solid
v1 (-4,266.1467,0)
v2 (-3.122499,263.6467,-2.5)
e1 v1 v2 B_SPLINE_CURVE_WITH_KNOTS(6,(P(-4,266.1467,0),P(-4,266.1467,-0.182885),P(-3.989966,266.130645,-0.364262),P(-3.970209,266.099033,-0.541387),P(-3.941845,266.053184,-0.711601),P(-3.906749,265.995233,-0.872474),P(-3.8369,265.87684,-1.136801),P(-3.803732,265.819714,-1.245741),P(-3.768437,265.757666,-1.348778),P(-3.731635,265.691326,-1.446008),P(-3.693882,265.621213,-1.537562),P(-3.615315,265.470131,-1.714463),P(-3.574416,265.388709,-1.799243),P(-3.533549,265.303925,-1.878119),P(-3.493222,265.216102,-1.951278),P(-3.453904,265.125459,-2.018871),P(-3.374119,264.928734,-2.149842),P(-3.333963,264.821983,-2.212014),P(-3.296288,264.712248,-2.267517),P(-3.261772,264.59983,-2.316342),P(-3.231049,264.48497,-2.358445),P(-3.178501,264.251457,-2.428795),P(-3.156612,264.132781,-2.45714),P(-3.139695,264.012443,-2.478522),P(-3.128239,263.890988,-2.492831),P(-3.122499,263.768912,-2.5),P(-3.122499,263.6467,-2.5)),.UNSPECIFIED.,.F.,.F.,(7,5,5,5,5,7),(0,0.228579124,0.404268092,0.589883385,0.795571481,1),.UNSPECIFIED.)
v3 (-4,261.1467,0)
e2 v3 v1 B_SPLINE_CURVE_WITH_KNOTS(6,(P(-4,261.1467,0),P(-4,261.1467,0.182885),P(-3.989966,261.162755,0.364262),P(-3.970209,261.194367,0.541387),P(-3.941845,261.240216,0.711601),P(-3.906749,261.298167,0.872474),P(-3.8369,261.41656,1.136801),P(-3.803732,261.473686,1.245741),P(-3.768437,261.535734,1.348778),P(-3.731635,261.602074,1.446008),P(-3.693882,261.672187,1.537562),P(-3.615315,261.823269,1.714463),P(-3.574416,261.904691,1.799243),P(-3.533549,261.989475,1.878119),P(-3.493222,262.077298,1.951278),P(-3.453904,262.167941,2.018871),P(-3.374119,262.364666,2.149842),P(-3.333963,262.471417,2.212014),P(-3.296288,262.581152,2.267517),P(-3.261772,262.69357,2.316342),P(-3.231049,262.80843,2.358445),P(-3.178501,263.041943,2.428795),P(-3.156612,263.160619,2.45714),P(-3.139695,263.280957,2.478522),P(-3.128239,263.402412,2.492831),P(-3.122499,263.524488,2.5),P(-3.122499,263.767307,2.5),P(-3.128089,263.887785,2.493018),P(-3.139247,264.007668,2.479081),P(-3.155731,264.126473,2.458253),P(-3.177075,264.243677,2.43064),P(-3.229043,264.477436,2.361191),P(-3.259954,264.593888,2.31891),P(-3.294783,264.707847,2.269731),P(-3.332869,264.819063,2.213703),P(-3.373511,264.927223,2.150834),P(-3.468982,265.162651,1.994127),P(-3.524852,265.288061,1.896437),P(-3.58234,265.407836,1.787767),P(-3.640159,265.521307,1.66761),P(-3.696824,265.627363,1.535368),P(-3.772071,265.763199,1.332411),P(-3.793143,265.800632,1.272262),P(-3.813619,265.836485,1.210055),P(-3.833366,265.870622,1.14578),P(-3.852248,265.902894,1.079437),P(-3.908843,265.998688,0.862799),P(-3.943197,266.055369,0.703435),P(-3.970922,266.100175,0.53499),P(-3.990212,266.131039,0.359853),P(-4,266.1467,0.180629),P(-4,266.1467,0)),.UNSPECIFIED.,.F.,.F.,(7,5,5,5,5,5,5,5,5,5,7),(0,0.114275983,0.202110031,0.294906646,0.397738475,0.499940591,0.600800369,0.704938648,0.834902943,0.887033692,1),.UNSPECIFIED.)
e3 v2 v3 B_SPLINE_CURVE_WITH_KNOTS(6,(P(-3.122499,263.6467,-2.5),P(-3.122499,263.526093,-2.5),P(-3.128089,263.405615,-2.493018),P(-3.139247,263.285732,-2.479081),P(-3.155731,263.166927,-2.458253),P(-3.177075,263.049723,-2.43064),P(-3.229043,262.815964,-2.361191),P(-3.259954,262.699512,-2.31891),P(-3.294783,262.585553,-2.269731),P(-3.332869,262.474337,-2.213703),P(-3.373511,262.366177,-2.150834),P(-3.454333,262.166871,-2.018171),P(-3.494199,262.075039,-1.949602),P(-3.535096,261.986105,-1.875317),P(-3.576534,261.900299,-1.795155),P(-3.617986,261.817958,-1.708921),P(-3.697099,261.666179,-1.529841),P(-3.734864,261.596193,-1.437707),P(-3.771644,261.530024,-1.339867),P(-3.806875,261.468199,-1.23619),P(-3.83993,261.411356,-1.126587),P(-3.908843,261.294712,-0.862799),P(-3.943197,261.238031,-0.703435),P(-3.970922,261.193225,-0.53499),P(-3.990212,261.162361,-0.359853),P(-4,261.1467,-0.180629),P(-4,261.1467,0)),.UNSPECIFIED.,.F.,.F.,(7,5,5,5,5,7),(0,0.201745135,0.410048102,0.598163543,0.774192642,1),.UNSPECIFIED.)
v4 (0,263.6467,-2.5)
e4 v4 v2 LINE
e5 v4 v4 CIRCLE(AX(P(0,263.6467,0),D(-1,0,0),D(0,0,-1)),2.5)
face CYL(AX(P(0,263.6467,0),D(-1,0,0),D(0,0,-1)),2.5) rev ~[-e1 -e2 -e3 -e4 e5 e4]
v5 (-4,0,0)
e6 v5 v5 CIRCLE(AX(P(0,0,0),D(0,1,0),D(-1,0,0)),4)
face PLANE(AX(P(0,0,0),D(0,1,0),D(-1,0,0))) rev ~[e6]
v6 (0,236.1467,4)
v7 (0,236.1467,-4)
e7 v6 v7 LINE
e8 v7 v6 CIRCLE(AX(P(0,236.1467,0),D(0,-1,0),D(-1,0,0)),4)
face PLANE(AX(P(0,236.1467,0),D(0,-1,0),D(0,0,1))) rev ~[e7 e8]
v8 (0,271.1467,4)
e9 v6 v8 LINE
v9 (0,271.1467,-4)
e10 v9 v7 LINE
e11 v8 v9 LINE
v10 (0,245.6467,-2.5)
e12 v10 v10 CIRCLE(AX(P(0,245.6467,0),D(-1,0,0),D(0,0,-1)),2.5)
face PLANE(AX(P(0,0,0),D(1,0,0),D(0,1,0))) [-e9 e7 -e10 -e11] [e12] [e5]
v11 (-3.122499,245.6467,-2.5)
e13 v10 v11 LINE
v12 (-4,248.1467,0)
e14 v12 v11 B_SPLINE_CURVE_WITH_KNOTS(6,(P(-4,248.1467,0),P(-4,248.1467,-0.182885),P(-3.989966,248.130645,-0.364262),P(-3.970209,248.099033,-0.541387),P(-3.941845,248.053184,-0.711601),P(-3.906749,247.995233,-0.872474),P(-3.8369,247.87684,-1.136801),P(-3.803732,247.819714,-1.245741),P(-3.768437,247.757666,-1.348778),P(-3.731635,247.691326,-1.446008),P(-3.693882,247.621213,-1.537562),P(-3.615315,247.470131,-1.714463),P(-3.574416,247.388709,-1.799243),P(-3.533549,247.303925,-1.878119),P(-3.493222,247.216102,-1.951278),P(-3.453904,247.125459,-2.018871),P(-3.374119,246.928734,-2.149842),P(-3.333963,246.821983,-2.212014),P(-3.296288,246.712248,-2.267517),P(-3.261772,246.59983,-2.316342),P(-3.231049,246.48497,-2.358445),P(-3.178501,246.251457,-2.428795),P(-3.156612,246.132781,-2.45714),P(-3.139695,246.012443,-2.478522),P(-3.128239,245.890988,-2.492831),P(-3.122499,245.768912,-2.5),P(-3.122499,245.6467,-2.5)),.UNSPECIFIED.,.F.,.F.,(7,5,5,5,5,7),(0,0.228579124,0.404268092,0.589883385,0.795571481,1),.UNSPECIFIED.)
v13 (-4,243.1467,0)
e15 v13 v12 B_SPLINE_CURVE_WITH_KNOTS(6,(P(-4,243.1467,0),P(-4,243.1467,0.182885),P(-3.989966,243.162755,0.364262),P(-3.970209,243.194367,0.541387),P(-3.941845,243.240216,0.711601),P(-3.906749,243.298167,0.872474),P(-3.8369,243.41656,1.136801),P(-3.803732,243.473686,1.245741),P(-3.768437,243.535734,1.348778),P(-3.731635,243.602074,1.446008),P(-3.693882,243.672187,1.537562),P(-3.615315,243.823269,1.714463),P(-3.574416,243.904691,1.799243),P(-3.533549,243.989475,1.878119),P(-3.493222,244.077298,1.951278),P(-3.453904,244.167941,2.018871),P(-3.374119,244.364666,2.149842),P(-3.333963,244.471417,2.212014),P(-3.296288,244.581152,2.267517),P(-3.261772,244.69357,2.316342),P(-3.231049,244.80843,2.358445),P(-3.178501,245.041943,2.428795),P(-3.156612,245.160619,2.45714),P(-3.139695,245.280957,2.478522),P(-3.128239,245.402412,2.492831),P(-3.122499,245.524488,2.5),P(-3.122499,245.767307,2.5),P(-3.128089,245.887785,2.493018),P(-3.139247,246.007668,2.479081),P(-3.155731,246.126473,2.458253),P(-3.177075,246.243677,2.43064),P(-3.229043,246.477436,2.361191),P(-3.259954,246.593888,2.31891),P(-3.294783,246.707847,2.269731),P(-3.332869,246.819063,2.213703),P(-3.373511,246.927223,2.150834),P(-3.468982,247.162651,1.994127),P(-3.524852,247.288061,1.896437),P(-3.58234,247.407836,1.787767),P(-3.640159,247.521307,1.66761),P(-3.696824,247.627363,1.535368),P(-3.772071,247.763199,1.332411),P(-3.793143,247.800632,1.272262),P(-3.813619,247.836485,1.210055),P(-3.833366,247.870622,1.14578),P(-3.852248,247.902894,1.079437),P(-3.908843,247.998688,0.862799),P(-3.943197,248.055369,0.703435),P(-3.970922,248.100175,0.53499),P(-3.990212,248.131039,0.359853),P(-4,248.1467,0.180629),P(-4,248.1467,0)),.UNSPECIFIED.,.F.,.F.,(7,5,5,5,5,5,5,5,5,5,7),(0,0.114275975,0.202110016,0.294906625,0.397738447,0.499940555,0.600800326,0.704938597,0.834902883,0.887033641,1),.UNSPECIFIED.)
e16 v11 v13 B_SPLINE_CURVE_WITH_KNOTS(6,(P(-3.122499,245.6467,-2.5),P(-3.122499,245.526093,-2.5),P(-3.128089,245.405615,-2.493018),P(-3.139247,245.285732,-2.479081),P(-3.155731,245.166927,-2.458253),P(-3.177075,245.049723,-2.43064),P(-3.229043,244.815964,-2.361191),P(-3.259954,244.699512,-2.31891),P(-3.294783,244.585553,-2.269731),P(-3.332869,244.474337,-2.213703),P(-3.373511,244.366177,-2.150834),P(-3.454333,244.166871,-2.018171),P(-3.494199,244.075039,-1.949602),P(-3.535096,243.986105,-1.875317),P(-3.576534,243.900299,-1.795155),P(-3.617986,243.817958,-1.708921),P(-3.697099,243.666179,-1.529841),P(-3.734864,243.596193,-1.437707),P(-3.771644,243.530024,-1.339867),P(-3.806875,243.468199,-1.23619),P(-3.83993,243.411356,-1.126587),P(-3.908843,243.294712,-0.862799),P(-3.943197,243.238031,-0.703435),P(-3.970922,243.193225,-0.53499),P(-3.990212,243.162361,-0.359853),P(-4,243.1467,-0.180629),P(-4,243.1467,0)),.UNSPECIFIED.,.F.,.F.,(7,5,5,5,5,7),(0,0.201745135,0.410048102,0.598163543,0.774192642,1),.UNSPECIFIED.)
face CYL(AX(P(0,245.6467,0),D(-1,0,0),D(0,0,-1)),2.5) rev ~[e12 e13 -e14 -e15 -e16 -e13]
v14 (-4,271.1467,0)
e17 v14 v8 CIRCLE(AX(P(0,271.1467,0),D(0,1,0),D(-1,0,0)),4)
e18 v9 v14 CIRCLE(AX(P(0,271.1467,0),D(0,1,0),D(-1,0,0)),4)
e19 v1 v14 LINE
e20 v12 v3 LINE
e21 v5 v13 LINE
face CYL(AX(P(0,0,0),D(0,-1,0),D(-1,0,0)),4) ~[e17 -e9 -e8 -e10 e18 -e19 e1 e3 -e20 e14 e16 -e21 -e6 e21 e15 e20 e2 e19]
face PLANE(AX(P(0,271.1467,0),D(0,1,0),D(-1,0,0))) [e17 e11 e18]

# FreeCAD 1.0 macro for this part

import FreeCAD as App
import Part
import Sketcher

V = App.Vector
Q = App.Units.Quantity

doc = App.newDocument("Part")
body = doc.addObject("PartDesign::Body", "Body")

# Sketch on XZ plane
sketch1 = body.newObject("Sketcher::SketchObject", "Sketch")
sketch1.AttachmentSupport = (doc.getObject("XZ_Plane"), [""])
sketch1.MapMode = "FlatFace"
sketch1.addGeometry(Part.Circle(V(0, 0, 0), V(0, 0, 1), 4), False)
sketch1.addConstraint(Sketcher.Constraint("Coincident", 0, 3, -1, 1))
sketch1.addConstraint(Sketcher.Constraint("Diameter", 0, Q("8 mm")))
pad1 = body.newObject("PartDesign::Pad", "Pad")
pad1.Profile = sketch1
pad1.Length = 271.1467
pad1.Reversed = True

# Sketch on YZ plane
sketch2 = body.newObject("Sketcher::SketchObject", "Sketch001")
sketch2.AttachmentSupport = (doc.getObject("YZ_Plane"), [""])
sketch2.MapMode = "FlatFace"
sketch2.addGeometry(Part.LineSegment(V(236, 4, 0), V(236, -4, 0)), False)
sketch2.addGeometry(Part.LineSegment(V(236, -4, 0), V(271, -4, 0)), False)
sketch2.addGeometry(Part.LineSegment(V(271, -4, 0), V(271, 4, 0)), False)
sketch2.addGeometry(Part.LineSegment(V(271, 4, 0), V(236, 4, 0)), False)
sketch2.addConstraint(Sketcher.Constraint("Coincident", 0, 2, 1, 1))
sketch2.addConstraint(Sketcher.Constraint("Coincident", 1, 2, 2, 1))
sketch2.addConstraint(Sketcher.Constraint("Coincident", 2, 2, 3, 1))
sketch2.addConstraint(Sketcher.Constraint("Coincident", 3, 2, 0, 1))
sketch2.addConstraint(Sketcher.Constraint("Vertical", 0))
sketch2.addConstraint(Sketcher.Constraint("Horizontal", 1))
sketch2.addConstraint(Sketcher.Constraint("Vertical", 2))
sketch2.addConstraint(Sketcher.Constraint("Horizontal", 3))
sketch2.addConstraint(Sketcher.Constraint("DistanceX", 1, 1, 1, 2, Q("35 mm")))
sketch2.addConstraint(Sketcher.Constraint("DistanceY", 0, 2, 0, 1, Q("8 mm")))
sketch2.addConstraint(Sketcher.Constraint("DistanceY", 0, 2, -1, 1, Q("4 mm")))
sketch2.addConstraint(Sketcher.Constraint("DistanceX", -1, 1, 0, 2, Q("236.1467 mm")))
pocket1 = body.newObject("PartDesign::Pocket", "Pocket")
pocket1.Profile = sketch2
pocket1.Length = 5
pocket1.Reversed = True

# Sketch on YZ plane
sketch3 = body.newObject("Sketcher::SketchObject", "Sketch002")
sketch3.AttachmentSupport = (doc.getObject("YZ_Plane"), [""])
sketch3.MapMode = "FlatFace"
sketch3.addGeometry(Part.Circle(V(263.6, 0, 0), V(0, 0, 1), 2.5), False)
sketch3.addGeometry(Part.Circle(V(245.6, 0, 0), V(0, 0, 1), 2.5), False)
sketch3.addConstraint(Sketcher.Constraint("Equal", 0, 1))
sketch3.addConstraint(Sketcher.Constraint("PointOnObject", 0, 3, -1))
sketch3.addConstraint(Sketcher.Constraint("PointOnObject", 1, 3, -1))
sketch3.addConstraint(Sketcher.Constraint("Diameter", 0, Q("5 mm")))
sketch3.addConstraint(Sketcher.Constraint("DistanceX", 1, 3, 0, 3, Q("18 mm")))
sketch3.addConstraint(Sketcher.Constraint("DistanceX", -1, 1, 0, 3, Q("263.6467 mm")))
doc.recompute()
hole = body.newObject("PartDesign::Hole", "Hole")
hole.Profile = sketch3
hole.ThreadType = "None"
hole.Diameter = 5
hole.DepthType = "ThroughAll"

doc.recompute()
